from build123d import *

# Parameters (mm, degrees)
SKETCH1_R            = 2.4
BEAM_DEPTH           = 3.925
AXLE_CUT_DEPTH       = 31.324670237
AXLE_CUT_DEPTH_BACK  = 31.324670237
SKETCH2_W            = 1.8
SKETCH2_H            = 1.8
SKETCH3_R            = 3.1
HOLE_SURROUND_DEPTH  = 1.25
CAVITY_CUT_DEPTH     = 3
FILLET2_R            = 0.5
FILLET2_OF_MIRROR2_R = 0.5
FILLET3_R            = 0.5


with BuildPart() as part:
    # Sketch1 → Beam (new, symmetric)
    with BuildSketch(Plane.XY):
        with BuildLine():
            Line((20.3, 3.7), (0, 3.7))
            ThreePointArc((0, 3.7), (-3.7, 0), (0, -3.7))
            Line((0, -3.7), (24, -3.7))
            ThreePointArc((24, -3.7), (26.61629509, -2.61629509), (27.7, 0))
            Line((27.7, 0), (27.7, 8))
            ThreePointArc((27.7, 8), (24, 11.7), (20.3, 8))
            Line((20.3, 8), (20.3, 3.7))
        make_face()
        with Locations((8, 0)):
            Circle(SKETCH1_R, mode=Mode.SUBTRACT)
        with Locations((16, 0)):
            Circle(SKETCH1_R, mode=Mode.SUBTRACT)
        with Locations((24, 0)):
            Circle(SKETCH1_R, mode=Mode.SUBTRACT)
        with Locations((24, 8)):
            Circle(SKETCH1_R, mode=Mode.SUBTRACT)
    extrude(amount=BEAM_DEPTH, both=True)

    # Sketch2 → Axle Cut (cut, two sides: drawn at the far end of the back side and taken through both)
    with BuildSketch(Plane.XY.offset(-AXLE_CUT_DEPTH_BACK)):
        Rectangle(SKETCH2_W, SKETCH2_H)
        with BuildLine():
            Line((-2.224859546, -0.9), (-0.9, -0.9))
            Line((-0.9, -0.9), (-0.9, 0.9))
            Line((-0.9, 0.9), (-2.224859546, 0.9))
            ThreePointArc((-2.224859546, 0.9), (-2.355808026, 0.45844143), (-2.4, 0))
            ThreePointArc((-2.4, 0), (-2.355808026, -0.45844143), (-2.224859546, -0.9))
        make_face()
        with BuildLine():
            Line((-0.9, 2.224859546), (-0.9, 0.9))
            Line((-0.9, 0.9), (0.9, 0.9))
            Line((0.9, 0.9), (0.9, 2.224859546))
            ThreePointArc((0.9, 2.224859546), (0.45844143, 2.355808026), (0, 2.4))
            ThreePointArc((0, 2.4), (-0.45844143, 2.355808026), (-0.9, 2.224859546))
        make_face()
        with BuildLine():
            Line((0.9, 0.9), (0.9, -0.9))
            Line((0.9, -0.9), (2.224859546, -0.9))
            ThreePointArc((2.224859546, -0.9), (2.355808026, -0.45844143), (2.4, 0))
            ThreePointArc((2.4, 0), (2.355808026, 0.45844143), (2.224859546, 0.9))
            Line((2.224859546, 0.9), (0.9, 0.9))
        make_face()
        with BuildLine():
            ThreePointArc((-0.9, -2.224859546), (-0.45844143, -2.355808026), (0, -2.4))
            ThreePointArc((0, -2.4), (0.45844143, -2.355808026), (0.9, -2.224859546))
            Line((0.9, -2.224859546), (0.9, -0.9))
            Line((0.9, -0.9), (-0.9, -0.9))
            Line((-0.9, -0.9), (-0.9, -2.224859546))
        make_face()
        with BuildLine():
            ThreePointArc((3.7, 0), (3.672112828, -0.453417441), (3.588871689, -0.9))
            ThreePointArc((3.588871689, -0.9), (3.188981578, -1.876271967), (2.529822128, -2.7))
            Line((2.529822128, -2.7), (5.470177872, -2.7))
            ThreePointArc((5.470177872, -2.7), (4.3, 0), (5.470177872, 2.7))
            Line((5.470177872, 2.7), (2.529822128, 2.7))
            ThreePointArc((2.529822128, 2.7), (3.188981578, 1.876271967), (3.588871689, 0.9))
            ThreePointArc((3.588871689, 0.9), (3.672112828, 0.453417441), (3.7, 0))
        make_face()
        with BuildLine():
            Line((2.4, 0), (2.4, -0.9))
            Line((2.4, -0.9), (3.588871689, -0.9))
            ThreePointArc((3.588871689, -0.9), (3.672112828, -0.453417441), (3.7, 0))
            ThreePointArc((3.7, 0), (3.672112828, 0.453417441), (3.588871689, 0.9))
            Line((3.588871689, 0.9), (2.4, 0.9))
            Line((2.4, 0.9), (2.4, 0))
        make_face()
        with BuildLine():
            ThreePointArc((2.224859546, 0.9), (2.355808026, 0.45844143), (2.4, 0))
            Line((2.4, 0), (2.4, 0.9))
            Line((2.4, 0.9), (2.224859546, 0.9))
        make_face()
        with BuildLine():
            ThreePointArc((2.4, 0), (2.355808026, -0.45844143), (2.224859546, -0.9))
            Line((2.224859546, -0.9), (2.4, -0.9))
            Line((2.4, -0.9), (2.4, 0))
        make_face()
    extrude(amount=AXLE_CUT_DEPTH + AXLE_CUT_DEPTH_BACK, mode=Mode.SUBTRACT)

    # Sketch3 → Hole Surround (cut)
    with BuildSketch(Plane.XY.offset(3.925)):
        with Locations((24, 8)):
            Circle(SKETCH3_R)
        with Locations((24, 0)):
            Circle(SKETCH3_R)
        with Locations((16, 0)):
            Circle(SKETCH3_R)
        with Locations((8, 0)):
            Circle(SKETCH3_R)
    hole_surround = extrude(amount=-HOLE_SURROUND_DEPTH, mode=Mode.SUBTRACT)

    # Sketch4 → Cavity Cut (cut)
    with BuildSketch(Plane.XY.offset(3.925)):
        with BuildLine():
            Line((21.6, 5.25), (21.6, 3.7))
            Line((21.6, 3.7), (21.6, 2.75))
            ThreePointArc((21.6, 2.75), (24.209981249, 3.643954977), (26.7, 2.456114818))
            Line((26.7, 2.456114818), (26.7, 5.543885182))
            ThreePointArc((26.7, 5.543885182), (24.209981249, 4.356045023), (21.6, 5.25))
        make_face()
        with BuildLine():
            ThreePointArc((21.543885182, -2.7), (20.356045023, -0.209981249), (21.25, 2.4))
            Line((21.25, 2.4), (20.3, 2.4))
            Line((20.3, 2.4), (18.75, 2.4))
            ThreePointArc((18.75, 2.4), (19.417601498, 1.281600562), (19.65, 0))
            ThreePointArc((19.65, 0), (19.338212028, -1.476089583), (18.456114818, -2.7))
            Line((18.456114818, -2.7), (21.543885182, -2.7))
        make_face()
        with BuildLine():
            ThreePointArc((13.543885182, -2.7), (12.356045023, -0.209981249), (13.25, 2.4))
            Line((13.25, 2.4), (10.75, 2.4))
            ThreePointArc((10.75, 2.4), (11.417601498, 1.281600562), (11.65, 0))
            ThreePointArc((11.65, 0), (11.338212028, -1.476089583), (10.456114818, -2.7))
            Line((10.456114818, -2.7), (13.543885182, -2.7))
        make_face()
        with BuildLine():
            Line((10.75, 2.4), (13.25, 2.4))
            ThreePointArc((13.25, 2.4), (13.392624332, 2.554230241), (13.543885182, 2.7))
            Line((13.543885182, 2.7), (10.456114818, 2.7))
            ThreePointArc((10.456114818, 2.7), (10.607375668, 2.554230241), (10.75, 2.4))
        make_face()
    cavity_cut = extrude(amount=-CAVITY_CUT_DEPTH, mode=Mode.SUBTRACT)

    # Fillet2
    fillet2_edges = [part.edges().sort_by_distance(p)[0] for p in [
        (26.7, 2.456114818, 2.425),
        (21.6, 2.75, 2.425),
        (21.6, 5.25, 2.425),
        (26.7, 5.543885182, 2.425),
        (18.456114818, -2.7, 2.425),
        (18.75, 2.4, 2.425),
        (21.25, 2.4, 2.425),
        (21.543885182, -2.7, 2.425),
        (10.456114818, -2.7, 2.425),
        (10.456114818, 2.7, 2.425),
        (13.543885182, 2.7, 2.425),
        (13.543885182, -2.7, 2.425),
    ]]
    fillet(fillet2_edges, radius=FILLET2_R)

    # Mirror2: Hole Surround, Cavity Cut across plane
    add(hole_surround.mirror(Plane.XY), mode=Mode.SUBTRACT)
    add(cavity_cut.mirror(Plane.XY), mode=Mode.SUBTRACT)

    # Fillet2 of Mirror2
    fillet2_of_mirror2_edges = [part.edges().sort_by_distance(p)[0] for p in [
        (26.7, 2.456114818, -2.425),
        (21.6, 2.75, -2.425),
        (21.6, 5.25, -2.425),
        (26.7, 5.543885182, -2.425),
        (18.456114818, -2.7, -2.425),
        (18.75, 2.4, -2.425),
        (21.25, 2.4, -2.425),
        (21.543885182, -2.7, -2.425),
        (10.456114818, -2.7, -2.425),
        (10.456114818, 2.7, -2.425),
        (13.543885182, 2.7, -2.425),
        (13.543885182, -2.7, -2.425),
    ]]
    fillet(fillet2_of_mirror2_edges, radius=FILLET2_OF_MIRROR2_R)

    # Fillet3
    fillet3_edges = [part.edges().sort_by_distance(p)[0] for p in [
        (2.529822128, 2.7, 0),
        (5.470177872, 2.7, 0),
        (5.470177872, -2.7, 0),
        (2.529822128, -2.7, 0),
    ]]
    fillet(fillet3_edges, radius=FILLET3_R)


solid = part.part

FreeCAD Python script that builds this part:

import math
import FreeCAD as App
import Part
import Sketcher

V = App.Vector
Q = App.Units.Quantity


def edges_at(feature, points):
    """Names of the edges that pass closest to the given points."""
    edges = feature.Shape.Edges
    near = lambda p: min(range(len(edges)), key=lambda i: edges[i].distToShape(Part.Vertex(*p))[0])
    return sorted({f"Edge{near(p) + 1}" for p in points})

doc = App.newDocument("Part")
body = doc.addObject("PartDesign::Body", "Body")

# Sketch on XY plane
sketch1 = body.newObject("Sketcher::SketchObject", "Sketch")
sketch1.AttachmentSupport = (doc.getObject("XY_Plane"), [""])
sketch1.MapMode = "FlatFace"
sketch1.addGeometry([
    Part.LineSegment(V(20.3, 3.7, 0), V(0, 3.7, 0)),  # 0
    Part.ArcOfCircle(Part.Circle(V(0, 0, 0), V(0, 0, 1), 3.7), math.radians(90), math.radians(270)),  # 1
    Part.LineSegment(V(0, -3.7, 0), V(24, -3.7, 0)),  # 2
    Part.ArcOfCircle(Part.Circle(V(24, 0, 0), V(0, 0, 1), 3.7), math.radians(-90), math.radians(0)),  # 3
    Part.LineSegment(V(27.7, 0, 0), V(27.7, 8, 0)),  # 4
    Part.ArcOfCircle(Part.Circle(V(24, 8, 0), V(0, 0, 1), 3.7), math.radians(0), math.radians(180)),  # 5
    Part.LineSegment(V(20.3, 8, 0), V(20.3, 3.7, 0)),  # 6
    Part.Circle(V(8, 0, 0), V(0, 0, 1), 2.4),  # 7
    Part.Circle(V(16, 0, 0), V(0, 0, 1), 2.4),  # 8
    Part.Circle(V(24, 0, 0), V(0, 0, 1), 2.4),  # 9
    Part.Circle(V(24, 8, 0), V(0, 0, 1), 2.4),  # 10
], False)
sketch1.addConstraint([
    Sketcher.Constraint("Tangent", 0, 2, 1, 1),
    Sketcher.Constraint("Tangent", 1, 2, 2, 1),
    Sketcher.Constraint("Tangent", 2, 2, 3, 1),
    Sketcher.Constraint("Tangent", 3, 2, 4, 1),
    Sketcher.Constraint("Tangent", 4, 2, 5, 1),
    Sketcher.Constraint("Tangent", 5, 2, 6, 1),
    Sketcher.Constraint("Coincident", 6, 2, 0, 1),
    Sketcher.Constraint("Horizontal", 0),
    Sketcher.Constraint("Horizontal", 2),
    Sketcher.Constraint("Vertical", 4),
    Sketcher.Constraint("Vertical", 6),
    Sketcher.Constraint("Coincident", 1, 3, -1, 1),
    Sketcher.Constraint("Coincident", 9, 3, 3, 3),
    Sketcher.Constraint("Coincident", 10, 3, 5, 3),
    Sketcher.Constraint("Equal", 1, 3),
    Sketcher.Constraint("Equal", 3, 5),
    Sketcher.Constraint("Equal", 7, 8),
    Sketcher.Constraint("Equal", 8, 9),
    Sketcher.Constraint("Equal", 9, 10),
    Sketcher.Constraint("PointOnObject", 7, 3, -1),
    Sketcher.Constraint("PointOnObject", 8, 3, -1),
    Sketcher.Constraint("Diameter", 7, Q("4.8 mm")),
    Sketcher.Constraint("Radius", 1, Q("3.7 mm")),
    Sketcher.Constraint("DistanceX", 2, 1, 2, 2, Q("24 mm")),
    Sketcher.Constraint("DistanceY", 4, 1, 4, 2, Q("8 mm")),
    Sketcher.Constraint("DistanceX", -1, 1, 7, 3, Q("8 mm")),
    Sketcher.Constraint("DistanceX", -1, 1, 8, 3, Q("16 mm")),
])
pad1 = body.newObject("PartDesign::Pad", "Pad")
pad1.Profile = sketch1
pad1.Length = 7.85
pad1.Midplane = True

# Sketch on XY plane
sketch2 = body.newObject("Sketcher::SketchObject", "Sketch001")
sketch2.AttachmentSupport = (doc.getObject("XY_Plane"), [""])
sketch2.MapMode = "FlatFace"
sketch2.addGeometry([
    Part.LineSegment(V(0.9, 0.9, 0), V(0.9, 2.2, 0)),  # 0
    Part.ArcOfCircle(Part.Circle(V(0, 0, 0), V(0, 0, 1), 2.4), math.radians(68), math.radians(90)),  # 1
    Part.ArcOfCircle(Part.Circle(V(0, 0, 0), V(0, 0, 1), 2.4), math.radians(90), math.radians(112)),  # 2
    Part.LineSegment(V(-0.9, 2.2, 0), V(-0.9, 0.9, 0)),  # 3
    Part.LineSegment(V(-0.9, 0.9, 0), V(-2.2, 0.9, 0)),  # 4
    Part.ArcOfCircle(Part.Circle(V(0, 0, 0), V(0, 0, 1), 2.4), math.radians(158), math.radians(180)),  # 5
    Part.ArcOfCircle(Part.Circle(V(0, 0, 0), V(0, 0, 1), 2.4), math.radians(180), math.radians(202)),  # 6
    Part.LineSegment(V(-2.2, -0.9, 0), V(-0.9, -0.9, 0)),  # 7
    Part.LineSegment(V(-0.9, -0.9, 0), V(-0.9, -2.2, 0)),  # 8
    Part.ArcOfCircle(Part.Circle(V(0, 0, 0), V(0, 0, 1), 2.4), math.radians(-112), math.radians(-90)),  # 9
    Part.ArcOfCircle(Part.Circle(V(0, 0, 0), V(0, 0, 1), 2.4), math.radians(-90), math.radians(-68)),  # 10
    Part.LineSegment(V(0.9, -2.2, 0), V(0.9, -0.9, 0)),  # 11
    Part.LineSegment(V(0.9, -0.9, 0), V(3.6, -0.9, 0)),  # 12
    Part.ArcOfCircle(Part.Circle(V(0, 0, 0), V(0, 0, 1), 3.7), math.radians(-47), math.radians(-14)),  # 13
    Part.LineSegment(V(2.5, -2.7, 0), V(5.5, -2.7, 0)),  # 14
    Part.ArcOfCircle(Part.Circle(V(8, 0, 0), V(0, 0, 1), 3.7), math.radians(133), math.radians(227)),  # 15
    Part.LineSegment(V(5.5, 2.7, 0), V(2.5, 2.7, 0)),  # 16
    Part.ArcOfCircle(Part.Circle(V(0, 0, 0), V(0, 0, 1), 3.7), math.radians(14), math.radians(47)),  # 17
    Part.LineSegment(V(3.6, 0.9, 0), V(0.9, 0.9, 0)),  # 18
], False)
sketch2.addConstraint([
    Sketcher.Constraint("Coincident", 0, 2, 1, 1),
    Sketcher.Constraint("Tangent", 1, 2, 2, 1),
    Sketcher.Constraint("Coincident", 2, 2, 3, 1),
    Sketcher.Constraint("Coincident", 3, 2, 4, 1),
    Sketcher.Constraint("Coincident", 4, 2, 5, 1),
    Sketcher.Constraint("Tangent", 5, 2, 6, 1),
    Sketcher.Constraint("Coincident", 6, 2, 7, 1),
    Sketcher.Constraint("Coincident", 7, 2, 8, 1),
    Sketcher.Constraint("Coincident", 8, 2, 9, 1),
    Sketcher.Constraint("Tangent", 9, 2, 10, 1),
    Sketcher.Constraint("Coincident", 10, 2, 11, 1),
    Sketcher.Constraint("Coincident", 11, 2, 12, 1),
    Sketcher.Constraint("Coincident", 12, 2, 13, 2),
    Sketcher.Constraint("Coincident", 13, 1, 14, 1),
    Sketcher.Constraint("Coincident", 14, 2, 15, 2),
    Sketcher.Constraint("Coincident", 15, 1, 16, 1),
    Sketcher.Constraint("Coincident", 16, 2, 17, 2),
    Sketcher.Constraint("Coincident", 17, 1, 18, 1),
    Sketcher.Constraint("Coincident", 18, 2, 0, 1),
    Sketcher.Constraint("Vertical", 0),
    Sketcher.Constraint("Vertical", 3),
    Sketcher.Constraint("Horizontal", 4),
    Sketcher.Constraint("Horizontal", 7),
    Sketcher.Constraint("Vertical", 8),
    Sketcher.Constraint("Vertical", 11),
    Sketcher.Constraint("Horizontal", 12),
    Sketcher.Constraint("Horizontal", 14),
    Sketcher.Constraint("Horizontal", 16),
    Sketcher.Constraint("Horizontal", 18),
    Sketcher.Constraint("Coincident", 1, 3, -1, 1),
    Sketcher.Constraint("Coincident", 5, 3, -1, 1),
    Sketcher.Constraint("Coincident", 9, 3, -1, 1),
    Sketcher.Constraint("Coincident", 13, 3, -1, 1),
    Sketcher.Constraint("Coincident", 17, 3, -1, 1),
    Sketcher.Constraint("Equal", 1, 2),
    Sketcher.Constraint("Equal", 2, 5),
    Sketcher.Constraint("Equal", 5, 6),
    Sketcher.Constraint("Equal", 6, 9),
    Sketcher.Constraint("Equal", 9, 10),
    Sketcher.Constraint("Equal", 13, 15),
    Sketcher.Constraint("Equal", 15, 17),
    Sketcher.Constraint("Symmetric", 3, 2, 11, 2, -1, 1),
    Sketcher.Constraint("Symmetric", 7, 2, 18, 2, -1, 1),
    Sketcher.Constraint("Symmetric", 7, 2, 11, 2, -2),
    Sketcher.Constraint("Symmetric", 14, 2, 15, 1, -1),
    Sketcher.Constraint("PointOnObject", 1, 2, -2),
    Sketcher.Constraint("PointOnObject", 5, 2, -1),
    Sketcher.Constraint("PointOnObject", 9, 2, -2),
    Sketcher.Constraint("Equal", 7, 0),
    Sketcher.Constraint("Radius", 1, Q("2.4 mm")),
    Sketcher.Constraint("Radius", 13, Q("3.7 mm")),
    Sketcher.Constraint("DistanceX", -1, 1, 15, 3, Q("8 mm")),
    Sketcher.Constraint("DistanceX", -1, 1, 0, 2, Q("0.9 mm")),
    Sketcher.Constraint("DistanceY", 13, 1, -1, 1, Q("2.7 mm")),
])
pocket1 = body.newObject("PartDesign::Pocket", "Pocket")
pocket1.Profile = sketch2
pocket1.Type = "ThroughAll"
pocket1.Midplane = True

# Sketch on XY plane
sketch3 = body.newObject("Sketcher::SketchObject", "Sketch002")
sketch3.AttachmentSupport = (doc.getObject("XY_Plane"), [""])
sketch3.MapMode = "FlatFace"
sketch3.AttachmentOffset = App.Placement(V(0, 0, 3.925), App.Rotation())
sketch3.addGeometry([
    Part.Circle(V(24, 8, 0), V(0, 0, 1), 3.1),
    Part.Circle(V(24, 0, 0), V(0, 0, 1), 3.1),
    Part.Circle(V(16, 0, 0), V(0, 0, 1), 3.1),
    Part.Circle(V(8, 0, 0), V(0, 0, 1), 3.1),
], False)
sketch3.addConstraint([
    Sketcher.Constraint("Equal", 0, 1),
    Sketcher.Constraint("Equal", 1, 2),
    Sketcher.Constraint("Equal", 2, 3),
    Sketcher.Constraint("PointOnObject", 1, 3, -1),
    Sketcher.Constraint("PointOnObject", 2, 3, -1),
    Sketcher.Constraint("PointOnObject", 3, 3, -1),
    Sketcher.Constraint("Vertical", 0, 3, 1, 3),
    Sketcher.Constraint("Diameter", 0, Q("6.2 mm")),
    Sketcher.Constraint("DistanceX", -1, 1, 0, 3, Q("24 mm")),
    Sketcher.Constraint("DistanceY", -1, 1, 0, 3, Q("8 mm")),
    Sketcher.Constraint("DistanceX", -1, 1, 2, 3, Q("16 mm")),
    Sketcher.Constraint("DistanceX", -1, 1, 3, 3, Q("8 mm")),
])
pocket2 = body.newObject("PartDesign::Pocket", "Pocket001")
pocket2.Profile = sketch3
pocket2.Length = 1.25

# Sketch on XY plane
sketch4 = body.newObject("Sketcher::SketchObject", "Sketch003")
sketch4.AttachmentSupport = (doc.getObject("XY_Plane"), [""])
sketch4.MapMode = "FlatFace"
sketch4.AttachmentOffset = App.Placement(V(0, 0, 3.925), App.Rotation())
sketch4.addGeometry([
    Part.LineSegment(V(21.6, 5.25, 0), V(21.6, 2.75, 0)),  # 0
    Part.ArcOfCircle(Part.Circle(V(24, 0, 0), V(0, 0, 1), 3.65), math.radians(42), math.radians(131)),  # 1
    Part.LineSegment(V(26.7, 2.46, 0), V(26.7, 5.54, 0)),  # 2
    Part.ArcOfCircle(Part.Circle(V(24, 8, 0), V(0, 0, 1), 3.65), math.radians(-131), math.radians(-42)),  # 3
    Part.ArcOfCircle(Part.Circle(V(24, 0, 0), V(0, 0, 1), 3.65), math.radians(139), math.radians(228)),  # 4
    Part.LineSegment(V(21.25, 2.4, 0), V(18.75, 2.4, 0)),  # 5
    Part.ArcOfCircle(Part.Circle(V(16, 0, 0), V(0, 0, 1), 3.65), math.radians(0), math.radians(41)),  # 6
    Part.ArcOfCircle(Part.Circle(V(16, 0, 0), V(0, 0, 1), 3.65), math.radians(-48), math.radians(0)),  # 7
    Part.LineSegment(V(18.46, -2.7, 0), V(21.54, -2.7, 0)),  # 8
    Part.ArcOfCircle(Part.Circle(V(16, 0, 0), V(0, 0, 1), 3.65), math.radians(139), math.radians(228)),  # 9
    Part.ArcOfCircle(Part.Circle(V(16, 0, 0), V(0, 0, 1), 3.65), math.radians(132.29), math.radians(138.89)),  # 10
    Part.LineSegment(V(13.54, 2.7, 0), V(10.46, 2.7, 0)),  # 11
    Part.ArcOfCircle(Part.Circle(V(8, 0, 0), V(0, 0, 1), 3.65), math.radians(41.11), math.radians(47.71)),  # 12
    Part.ArcOfCircle(Part.Circle(V(8, 0, 0), V(0, 0, 1), 3.65), math.radians(0), math.radians(41)),  # 13
    Part.ArcOfCircle(Part.Circle(V(8, 0, 0), V(0, 0, 1), 3.65), math.radians(-48), math.radians(0)),  # 14
    Part.LineSegment(V(10.46, -2.7, 0), V(13.54, -2.7, 0)),  # 15
], False)
sketch4.addConstraint([
    Sketcher.Constraint("Coincident", 0, 2, 1, 2),
    Sketcher.Constraint("Coincident", 1, 1, 2, 1),
    Sketcher.Constraint("Coincident", 2, 2, 3, 2),
    Sketcher.Constraint("Coincident", 3, 1, 0, 1),
    Sketcher.Constraint("Coincident", 4, 1, 5, 1),
    Sketcher.Constraint("Coincident", 5, 2, 6, 2),
    Sketcher.Constraint("Tangent", 6, 1, 7, 2),
    Sketcher.Constraint("Coincident", 7, 1, 8, 1),
    Sketcher.Constraint("Coincident", 8, 2, 4, 2),
    Sketcher.Constraint("Tangent", 9, 1, 10, 2),
    Sketcher.Constraint("Coincident", 10, 1, 11, 1),
    Sketcher.Constraint("Coincident", 11, 2, 12, 2),
    Sketcher.Constraint("Tangent", 12, 1, 13, 2),
    Sketcher.Constraint("Tangent", 13, 1, 14, 2),
    Sketcher.Constraint("Coincident", 14, 1, 15, 1),
    Sketcher.Constraint("Coincident", 15, 2, 9, 2),
    Sketcher.Constraint("Vertical", 0),
    Sketcher.Constraint("Vertical", 2),
    Sketcher.Constraint("Horizontal", 5),
    Sketcher.Constraint("Horizontal", 8),
    Sketcher.Constraint("Horizontal", 11),
    Sketcher.Constraint("Horizontal", 15),
    Sketcher.Constraint("Coincident", 4, 3, 1, 3),
    Sketcher.Constraint("Coincident", 9, 3, 6, 3),
    Sketcher.Constraint("Coincident", 14, 3, 12, 3),
    Sketcher.Constraint("Equal", 1, 3),
    Sketcher.Constraint("Equal", 3, 4),
    Sketcher.Constraint("Equal", 4, 6),
    Sketcher.Constraint("Equal", 6, 7),
    Sketcher.Constraint("Equal", 7, 9),
    Sketcher.Constraint("Equal", 9, 10),
    Sketcher.Constraint("Equal", 10, 12),
    Sketcher.Constraint("Symmetric", 11, 2, 14, 1, -1),
    Sketcher.Constraint("PointOnObject", 1, 3, -1),
    Sketcher.Constraint("PointOnObject", 6, 3, -1),
    Sketcher.Constraint("PointOnObject", 6, 1, -1),
    Sketcher.Constraint("PointOnObject", 13, 1, -1),
    Sketcher.Constraint("Horizontal", 5, 2, 9, 1),
    Sketcher.Constraint("Horizontal", 9, 1, 12, 1),
    Sketcher.Constraint("Horizontal", 8, 2, 14, 1),
    Sketcher.Constraint("Vertical", 1, 3, 3, 3),
    Sketcher.Constraint("Equal", 8, 11),
    Sketcher.Constraint("Equal", 5, 0),
    Sketcher.Constraint("Equal", 15, 2),
    Sketcher.Constraint("Radius", 1, Q("3.65 mm")),
    Sketcher.Constraint("DistanceX", 5, 2, 5, 1, Q("2.5 mm")),
    Sketcher.Constraint("DistanceX", -1, 1, 1, 3, Q("24 mm")),
    Sketcher.Constraint("DistanceY", -1, 1, 3, 3, Q("8 mm")),
    Sketcher.Constraint("DistanceX", -1, 1, 6, 3, Q("16 mm")),
    Sketcher.Constraint("DistanceX", -1, 1, 1, 1, Q("26.7 mm")),
])
pocket3 = body.newObject("PartDesign::Pocket", "Pocket002")
pocket3.Profile = sketch4
pocket3.Length = 3
doc.recompute()

fillet = body.newObject("PartDesign::Fillet", "Fillet")
fillet.Base = (pocket3, edges_at(pocket3, [
    (26.7, 2.456, 2.425),
    (21.6, 2.75, 2.425),
    (21.6, 5.25, 2.425),
    (26.7, 5.544, 2.425),
    (18.456, -2.7, 2.425),
    (18.75, 2.4, 2.425),
    (21.25, 2.4, 2.425),
    (21.544, -2.7, 2.425),
    (10.456, -2.7, 2.425),
    (10.456, 2.7, 2.425),
    (13.544, 2.7, 2.425),
    (13.544, -2.7, 2.425),
]))
fillet.Radius = 0.5
doc.recompute()

mirrored = body.newObject("PartDesign::Mirrored", "Mirrored")
mirrored.Originals = [pocket2, pocket3]
mirrored.MirrorPlane = (doc.getObject("XY_Plane"), [""])
body.Tip = mirrored
doc.recompute()

fillet2 = body.newObject("PartDesign::Fillet", "Fillet001")
fillet2.Base = (mirrored, edges_at(mirrored, [
    (26.7, 2.456, -2.425),
    (21.6, 2.75, -2.425),
    (21.6, 5.25, -2.425),
    (26.7, 5.544, -2.425),
    (18.456, -2.7, -2.425),
    (18.75, 2.4, -2.425),
    (21.25, 2.4, -2.425),
    (21.544, -2.7, -2.425),
    (10.456, -2.7, -2.425),
    (10.456, 2.7, -2.425),
    (13.544, 2.7, -2.425),
    (13.544, -2.7, -2.425),
]))
fillet2.Radius = 0.5
doc.recompute()

fillet3 = body.newObject("PartDesign::Fillet", "Fillet002")
fillet3.Base = (fillet2, edges_at(fillet2, [
    (2.53, 2.7, 0),
    (5.47, 2.7, 0),
    (5.47, -2.7, 0),
    (2.53, -2.7, 0),
]))
fillet3.Radius = 0.5

doc.recompute()
